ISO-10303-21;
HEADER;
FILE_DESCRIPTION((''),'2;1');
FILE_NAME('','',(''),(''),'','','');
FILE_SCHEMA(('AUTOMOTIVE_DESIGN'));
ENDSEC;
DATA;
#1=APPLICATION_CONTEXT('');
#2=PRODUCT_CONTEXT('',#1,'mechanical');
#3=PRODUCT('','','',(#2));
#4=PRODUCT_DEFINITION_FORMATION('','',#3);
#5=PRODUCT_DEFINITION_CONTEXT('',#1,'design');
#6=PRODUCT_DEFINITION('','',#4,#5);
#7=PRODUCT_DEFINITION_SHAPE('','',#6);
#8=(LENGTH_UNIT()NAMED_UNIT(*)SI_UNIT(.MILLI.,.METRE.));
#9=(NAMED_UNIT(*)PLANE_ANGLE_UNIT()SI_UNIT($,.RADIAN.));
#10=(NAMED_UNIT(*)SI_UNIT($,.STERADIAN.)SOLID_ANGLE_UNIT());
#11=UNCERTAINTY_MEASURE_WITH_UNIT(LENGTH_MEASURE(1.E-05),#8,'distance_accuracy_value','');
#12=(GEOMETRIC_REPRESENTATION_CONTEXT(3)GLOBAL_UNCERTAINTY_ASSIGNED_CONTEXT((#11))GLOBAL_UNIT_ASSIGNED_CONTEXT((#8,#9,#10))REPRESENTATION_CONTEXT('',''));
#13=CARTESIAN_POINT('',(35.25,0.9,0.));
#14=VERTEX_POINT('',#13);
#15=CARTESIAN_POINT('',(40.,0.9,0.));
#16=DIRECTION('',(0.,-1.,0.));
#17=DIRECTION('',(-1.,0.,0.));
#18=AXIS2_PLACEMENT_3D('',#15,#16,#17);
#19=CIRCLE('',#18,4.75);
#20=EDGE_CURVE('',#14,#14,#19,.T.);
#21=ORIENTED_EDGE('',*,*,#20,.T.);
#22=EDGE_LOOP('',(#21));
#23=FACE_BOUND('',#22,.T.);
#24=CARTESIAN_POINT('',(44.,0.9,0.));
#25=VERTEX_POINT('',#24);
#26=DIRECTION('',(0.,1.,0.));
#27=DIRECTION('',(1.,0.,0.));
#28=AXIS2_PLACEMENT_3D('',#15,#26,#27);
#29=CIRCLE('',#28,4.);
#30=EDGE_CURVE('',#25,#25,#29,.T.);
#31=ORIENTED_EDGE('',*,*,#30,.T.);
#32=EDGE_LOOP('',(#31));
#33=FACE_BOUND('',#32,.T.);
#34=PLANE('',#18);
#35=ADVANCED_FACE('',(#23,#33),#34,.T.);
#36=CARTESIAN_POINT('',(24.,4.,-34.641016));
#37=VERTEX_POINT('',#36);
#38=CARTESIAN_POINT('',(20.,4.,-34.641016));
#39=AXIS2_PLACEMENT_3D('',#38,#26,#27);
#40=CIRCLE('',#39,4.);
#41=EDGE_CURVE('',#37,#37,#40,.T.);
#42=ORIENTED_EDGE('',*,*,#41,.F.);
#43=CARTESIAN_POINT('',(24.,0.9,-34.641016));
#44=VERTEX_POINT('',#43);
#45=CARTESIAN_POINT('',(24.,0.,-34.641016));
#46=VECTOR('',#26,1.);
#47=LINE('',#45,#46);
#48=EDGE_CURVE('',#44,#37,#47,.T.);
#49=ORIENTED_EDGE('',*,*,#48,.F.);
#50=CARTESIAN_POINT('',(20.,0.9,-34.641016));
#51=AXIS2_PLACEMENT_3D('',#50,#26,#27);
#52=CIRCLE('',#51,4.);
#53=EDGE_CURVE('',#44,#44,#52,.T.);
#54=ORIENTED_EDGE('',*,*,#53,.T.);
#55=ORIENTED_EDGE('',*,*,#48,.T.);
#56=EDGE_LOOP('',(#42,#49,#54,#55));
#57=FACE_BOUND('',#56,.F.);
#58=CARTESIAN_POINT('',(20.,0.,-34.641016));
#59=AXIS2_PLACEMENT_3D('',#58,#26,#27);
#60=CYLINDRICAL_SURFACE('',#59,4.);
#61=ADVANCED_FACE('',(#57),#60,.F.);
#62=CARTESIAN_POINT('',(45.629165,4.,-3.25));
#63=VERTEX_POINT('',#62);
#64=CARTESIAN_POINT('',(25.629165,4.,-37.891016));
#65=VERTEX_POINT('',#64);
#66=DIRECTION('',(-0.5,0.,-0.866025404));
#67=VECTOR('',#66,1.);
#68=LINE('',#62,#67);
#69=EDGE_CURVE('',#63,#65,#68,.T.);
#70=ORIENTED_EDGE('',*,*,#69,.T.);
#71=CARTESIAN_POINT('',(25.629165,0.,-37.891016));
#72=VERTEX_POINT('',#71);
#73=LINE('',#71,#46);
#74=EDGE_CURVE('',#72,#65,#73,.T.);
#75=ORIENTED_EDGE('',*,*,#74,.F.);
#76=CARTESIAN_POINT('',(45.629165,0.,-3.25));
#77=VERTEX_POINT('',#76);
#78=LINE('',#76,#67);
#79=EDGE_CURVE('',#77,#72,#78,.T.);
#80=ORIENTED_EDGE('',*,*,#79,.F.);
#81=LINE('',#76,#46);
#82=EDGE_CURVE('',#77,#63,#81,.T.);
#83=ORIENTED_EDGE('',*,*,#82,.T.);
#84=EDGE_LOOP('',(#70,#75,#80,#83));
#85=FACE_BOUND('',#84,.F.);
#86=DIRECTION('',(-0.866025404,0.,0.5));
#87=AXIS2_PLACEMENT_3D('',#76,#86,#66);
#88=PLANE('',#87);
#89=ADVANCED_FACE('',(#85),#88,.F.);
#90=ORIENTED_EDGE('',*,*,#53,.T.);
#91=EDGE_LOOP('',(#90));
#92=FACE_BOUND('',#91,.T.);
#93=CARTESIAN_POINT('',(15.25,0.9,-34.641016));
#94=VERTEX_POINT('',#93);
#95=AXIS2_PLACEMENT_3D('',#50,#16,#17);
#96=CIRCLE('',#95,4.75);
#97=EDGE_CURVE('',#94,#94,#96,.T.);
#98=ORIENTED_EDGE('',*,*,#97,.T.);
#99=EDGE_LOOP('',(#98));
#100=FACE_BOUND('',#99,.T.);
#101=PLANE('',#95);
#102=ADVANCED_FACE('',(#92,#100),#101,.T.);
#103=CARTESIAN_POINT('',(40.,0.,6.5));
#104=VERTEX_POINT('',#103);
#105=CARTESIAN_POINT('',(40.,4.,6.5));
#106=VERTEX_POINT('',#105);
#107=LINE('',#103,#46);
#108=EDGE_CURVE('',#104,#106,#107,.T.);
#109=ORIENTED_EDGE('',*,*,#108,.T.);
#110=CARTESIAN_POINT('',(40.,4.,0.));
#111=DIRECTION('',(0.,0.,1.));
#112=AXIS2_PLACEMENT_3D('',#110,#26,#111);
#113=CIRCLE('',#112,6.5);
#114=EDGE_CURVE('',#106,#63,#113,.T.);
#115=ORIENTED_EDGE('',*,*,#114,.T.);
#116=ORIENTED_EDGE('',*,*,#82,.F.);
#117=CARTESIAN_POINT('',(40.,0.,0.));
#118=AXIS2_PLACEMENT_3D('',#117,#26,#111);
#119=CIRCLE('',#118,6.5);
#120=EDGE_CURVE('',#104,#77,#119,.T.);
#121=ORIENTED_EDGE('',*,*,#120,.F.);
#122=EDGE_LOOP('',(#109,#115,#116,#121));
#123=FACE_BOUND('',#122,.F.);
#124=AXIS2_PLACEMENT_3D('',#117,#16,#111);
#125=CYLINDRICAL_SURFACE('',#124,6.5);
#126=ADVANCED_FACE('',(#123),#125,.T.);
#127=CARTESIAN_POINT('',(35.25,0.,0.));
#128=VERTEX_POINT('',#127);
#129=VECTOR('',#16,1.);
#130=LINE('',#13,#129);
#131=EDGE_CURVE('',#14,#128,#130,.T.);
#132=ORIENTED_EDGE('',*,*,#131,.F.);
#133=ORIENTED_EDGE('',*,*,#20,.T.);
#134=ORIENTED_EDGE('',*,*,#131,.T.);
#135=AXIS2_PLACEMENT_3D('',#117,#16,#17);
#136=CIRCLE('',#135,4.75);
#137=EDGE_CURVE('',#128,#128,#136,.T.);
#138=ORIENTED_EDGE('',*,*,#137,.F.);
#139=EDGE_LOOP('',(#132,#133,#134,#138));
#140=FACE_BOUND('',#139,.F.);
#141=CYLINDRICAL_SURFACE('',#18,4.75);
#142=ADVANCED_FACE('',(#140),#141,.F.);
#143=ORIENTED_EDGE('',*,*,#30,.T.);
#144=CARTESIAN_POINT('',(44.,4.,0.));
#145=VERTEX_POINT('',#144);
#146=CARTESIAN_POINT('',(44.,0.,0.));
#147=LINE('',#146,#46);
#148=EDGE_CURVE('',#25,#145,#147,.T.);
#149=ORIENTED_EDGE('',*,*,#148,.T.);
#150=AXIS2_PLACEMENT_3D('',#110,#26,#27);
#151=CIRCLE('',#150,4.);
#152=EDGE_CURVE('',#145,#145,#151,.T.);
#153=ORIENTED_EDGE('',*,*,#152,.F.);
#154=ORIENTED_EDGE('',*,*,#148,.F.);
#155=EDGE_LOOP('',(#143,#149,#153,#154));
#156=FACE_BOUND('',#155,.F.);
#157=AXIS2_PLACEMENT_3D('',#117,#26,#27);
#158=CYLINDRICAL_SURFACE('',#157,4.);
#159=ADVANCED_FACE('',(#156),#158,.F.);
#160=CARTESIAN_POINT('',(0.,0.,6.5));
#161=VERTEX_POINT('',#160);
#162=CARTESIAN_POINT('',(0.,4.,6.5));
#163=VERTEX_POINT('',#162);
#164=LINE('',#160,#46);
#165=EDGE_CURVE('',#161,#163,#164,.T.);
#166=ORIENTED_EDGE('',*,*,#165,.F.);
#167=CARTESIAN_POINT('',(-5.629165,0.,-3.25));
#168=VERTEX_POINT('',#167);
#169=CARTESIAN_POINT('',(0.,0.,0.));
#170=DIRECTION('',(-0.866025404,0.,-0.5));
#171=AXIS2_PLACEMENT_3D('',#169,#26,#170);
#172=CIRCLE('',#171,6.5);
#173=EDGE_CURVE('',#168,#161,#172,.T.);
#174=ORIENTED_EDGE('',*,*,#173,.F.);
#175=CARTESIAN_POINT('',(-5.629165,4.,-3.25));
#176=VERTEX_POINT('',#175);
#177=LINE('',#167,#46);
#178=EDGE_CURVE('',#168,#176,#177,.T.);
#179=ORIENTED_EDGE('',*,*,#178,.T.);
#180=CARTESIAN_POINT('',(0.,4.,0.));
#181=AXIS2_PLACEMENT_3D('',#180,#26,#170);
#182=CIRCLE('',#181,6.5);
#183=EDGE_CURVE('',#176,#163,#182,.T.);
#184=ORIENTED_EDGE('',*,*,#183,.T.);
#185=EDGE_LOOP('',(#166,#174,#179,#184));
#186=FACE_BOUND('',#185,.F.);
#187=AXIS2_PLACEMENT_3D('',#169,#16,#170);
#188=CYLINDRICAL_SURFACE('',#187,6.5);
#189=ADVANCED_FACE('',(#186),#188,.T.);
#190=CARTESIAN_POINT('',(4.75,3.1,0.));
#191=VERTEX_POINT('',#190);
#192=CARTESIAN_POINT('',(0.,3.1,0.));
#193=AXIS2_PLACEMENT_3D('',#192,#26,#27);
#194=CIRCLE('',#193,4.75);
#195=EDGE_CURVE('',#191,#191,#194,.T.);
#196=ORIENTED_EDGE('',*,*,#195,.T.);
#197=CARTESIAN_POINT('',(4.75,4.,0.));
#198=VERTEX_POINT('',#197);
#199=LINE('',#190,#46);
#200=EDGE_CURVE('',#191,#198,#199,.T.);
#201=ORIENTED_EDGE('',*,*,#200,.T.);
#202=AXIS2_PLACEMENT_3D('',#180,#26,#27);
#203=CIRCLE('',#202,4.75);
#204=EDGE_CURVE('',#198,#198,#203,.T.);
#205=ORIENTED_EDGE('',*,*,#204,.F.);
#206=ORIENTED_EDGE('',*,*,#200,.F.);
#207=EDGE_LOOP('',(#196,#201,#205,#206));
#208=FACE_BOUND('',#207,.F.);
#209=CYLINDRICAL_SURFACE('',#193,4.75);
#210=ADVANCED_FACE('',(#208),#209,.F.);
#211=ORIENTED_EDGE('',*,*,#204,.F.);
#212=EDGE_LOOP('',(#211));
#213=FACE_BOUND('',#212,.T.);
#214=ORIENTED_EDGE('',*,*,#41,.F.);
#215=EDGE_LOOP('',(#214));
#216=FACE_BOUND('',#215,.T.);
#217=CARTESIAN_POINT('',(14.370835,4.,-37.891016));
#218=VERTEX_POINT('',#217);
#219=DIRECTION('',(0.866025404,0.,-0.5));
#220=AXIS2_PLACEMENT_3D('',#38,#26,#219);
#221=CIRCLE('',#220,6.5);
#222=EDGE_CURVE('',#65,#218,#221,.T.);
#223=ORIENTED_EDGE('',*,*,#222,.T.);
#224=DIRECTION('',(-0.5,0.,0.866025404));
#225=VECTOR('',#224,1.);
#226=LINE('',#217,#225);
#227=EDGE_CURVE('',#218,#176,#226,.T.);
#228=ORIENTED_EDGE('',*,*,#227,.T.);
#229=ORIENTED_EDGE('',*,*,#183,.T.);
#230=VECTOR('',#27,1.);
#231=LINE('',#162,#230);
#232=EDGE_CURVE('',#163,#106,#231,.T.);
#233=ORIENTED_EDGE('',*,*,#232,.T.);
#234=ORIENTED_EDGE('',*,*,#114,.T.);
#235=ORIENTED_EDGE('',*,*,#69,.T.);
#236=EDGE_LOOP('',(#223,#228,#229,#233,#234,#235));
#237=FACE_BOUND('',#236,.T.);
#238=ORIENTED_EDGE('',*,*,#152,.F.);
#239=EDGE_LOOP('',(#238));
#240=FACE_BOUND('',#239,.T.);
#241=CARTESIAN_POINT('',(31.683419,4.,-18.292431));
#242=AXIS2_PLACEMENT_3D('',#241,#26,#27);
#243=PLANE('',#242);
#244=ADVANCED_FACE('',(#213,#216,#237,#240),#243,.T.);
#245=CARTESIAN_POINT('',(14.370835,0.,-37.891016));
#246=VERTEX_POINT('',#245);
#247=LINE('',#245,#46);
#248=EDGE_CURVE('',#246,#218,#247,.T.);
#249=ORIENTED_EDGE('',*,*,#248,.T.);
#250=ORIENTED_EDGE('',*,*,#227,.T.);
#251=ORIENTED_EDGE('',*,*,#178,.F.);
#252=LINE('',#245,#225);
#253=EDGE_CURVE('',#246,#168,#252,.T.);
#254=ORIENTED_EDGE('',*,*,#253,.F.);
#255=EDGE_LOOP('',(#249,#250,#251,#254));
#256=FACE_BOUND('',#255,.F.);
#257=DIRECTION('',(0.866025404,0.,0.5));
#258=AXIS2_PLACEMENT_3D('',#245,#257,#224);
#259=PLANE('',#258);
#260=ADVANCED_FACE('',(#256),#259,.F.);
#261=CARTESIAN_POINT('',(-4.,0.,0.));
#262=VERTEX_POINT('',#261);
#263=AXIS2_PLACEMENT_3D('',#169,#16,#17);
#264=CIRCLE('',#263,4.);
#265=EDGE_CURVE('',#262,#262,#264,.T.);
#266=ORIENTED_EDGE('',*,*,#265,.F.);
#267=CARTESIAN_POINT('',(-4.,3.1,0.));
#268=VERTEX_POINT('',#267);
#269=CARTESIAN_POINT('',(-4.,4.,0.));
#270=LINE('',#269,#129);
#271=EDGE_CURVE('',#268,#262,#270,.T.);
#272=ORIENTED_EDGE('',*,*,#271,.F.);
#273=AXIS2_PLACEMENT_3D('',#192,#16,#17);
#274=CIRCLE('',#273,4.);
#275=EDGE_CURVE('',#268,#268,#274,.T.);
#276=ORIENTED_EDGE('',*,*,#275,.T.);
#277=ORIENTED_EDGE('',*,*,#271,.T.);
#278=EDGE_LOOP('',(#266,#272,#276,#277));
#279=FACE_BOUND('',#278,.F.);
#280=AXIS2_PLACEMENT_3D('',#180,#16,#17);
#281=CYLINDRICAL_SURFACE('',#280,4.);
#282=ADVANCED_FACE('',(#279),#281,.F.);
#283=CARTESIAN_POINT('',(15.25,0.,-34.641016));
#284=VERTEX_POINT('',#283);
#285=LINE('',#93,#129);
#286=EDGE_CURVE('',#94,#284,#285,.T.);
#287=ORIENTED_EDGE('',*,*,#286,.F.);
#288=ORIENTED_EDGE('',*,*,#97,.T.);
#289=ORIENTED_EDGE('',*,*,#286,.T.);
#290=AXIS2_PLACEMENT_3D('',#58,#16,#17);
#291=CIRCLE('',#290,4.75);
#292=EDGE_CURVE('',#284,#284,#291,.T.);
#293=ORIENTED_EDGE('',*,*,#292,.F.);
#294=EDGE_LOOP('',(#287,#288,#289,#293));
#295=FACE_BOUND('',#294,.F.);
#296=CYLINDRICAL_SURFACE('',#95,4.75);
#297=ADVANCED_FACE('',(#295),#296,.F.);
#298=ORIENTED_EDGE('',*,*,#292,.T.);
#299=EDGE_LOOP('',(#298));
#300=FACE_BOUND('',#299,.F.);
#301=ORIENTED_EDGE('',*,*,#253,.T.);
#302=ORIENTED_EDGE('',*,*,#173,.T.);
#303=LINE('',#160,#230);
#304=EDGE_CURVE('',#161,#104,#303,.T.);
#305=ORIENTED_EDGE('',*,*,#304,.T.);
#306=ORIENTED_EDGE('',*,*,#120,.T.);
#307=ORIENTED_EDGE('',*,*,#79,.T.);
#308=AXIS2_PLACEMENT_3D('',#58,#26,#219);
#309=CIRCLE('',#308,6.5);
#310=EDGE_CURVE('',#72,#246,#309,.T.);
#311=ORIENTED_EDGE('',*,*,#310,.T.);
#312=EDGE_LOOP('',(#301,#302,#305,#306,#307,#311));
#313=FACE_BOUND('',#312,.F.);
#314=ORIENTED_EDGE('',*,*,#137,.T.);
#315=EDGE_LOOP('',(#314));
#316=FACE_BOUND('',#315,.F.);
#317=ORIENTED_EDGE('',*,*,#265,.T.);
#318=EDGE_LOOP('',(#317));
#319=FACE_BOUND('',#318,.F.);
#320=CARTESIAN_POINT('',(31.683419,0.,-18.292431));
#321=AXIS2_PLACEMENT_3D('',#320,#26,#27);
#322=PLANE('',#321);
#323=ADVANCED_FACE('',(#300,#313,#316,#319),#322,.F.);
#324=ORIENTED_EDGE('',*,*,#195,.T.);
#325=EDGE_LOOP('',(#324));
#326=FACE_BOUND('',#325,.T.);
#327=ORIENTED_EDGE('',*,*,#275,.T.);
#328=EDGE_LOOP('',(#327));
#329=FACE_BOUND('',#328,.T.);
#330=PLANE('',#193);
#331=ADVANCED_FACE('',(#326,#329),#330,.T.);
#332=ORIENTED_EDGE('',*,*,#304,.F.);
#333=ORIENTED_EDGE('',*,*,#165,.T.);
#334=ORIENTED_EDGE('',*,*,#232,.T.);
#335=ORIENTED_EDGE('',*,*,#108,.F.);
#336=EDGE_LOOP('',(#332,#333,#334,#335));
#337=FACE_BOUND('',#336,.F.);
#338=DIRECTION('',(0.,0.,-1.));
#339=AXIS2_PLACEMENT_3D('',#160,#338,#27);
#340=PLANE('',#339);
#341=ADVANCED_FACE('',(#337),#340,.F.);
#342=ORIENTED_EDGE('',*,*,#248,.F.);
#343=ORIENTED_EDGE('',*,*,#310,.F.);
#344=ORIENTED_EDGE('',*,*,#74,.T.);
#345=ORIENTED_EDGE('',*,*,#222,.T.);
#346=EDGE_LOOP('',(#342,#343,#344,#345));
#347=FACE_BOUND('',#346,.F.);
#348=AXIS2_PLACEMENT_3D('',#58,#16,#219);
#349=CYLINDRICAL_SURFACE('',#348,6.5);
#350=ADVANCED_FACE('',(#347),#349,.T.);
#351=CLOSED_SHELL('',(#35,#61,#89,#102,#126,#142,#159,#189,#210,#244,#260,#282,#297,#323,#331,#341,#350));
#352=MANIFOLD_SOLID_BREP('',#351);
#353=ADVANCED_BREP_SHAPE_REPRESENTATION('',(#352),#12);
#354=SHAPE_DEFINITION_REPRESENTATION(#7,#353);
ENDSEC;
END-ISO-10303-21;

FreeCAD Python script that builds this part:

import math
import FreeCAD as App
import Part
import Sketcher
Q = App.Units.Quantity

doc = App.newDocument("Part")
body = doc.addObject("PartDesign::Body", "Body")

sketch1 = body.newObject("Sketcher::SketchObject", "Sketch")
sketch1.AttachmentSupport = (doc.getObject("XZ_Plane"), [""])
sketch1.MapMode = "FlatFace"
sketch1.addGeometry(Part.LineSegment(App.Vector(14.370835, -37.891016, 0), App.Vector(-5.629165, -3.25, 0)), False)
sketch1.addGeometry(Part.ArcOfCircle(Part.Circle(App.Vector(0, 0, 0), App.Vector(0, 0, 1), 6.5), math.radians(90), math.radians(210)), False)
sketch1.addGeometry(Part.LineSegment(App.Vector(0, 6.5, 0), App.Vector(40, 6.5, 0)), False)
sketch1.addGeometry(Part.ArcOfCircle(Part.Circle(App.Vector(40, 0, 0), App.Vector(0, 0, 1), 6.5), math.radians(-30), math.radians(90)), False)
sketch1.addGeometry(Part.LineSegment(App.Vector(45.629165, -3.25, 0), App.Vector(25.629165, -37.891016, 0)), False)
sketch1.addGeometry(Part.ArcOfCircle(Part.Circle(App.Vector(20, -34.641016, 0), App.Vector(0, 0, 1), 6.5), math.radians(-150), math.radians(-30)), False)
sketch1.addConstraint(Sketcher.Constraint("Tangent", 0, 2, 1, 2))
sketch1.addConstraint(Sketcher.Constraint("Tangent", 1, 1, 2, 1))
sketch1.addConstraint(Sketcher.Constraint("Tangent", 2, 2, 3, 2))
sketch1.addConstraint(Sketcher.Constraint("Tangent", 3, 1, 4, 1))
sketch1.addConstraint(Sketcher.Constraint("Tangent", 4, 2, 5, 2))
sketch1.addConstraint(Sketcher.Constraint("Tangent", 5, 1, 0, 1))
sketch1.addConstraint(Sketcher.Constraint("Horizontal", 2))
sketch1.addConstraint(Sketcher.Constraint("Coincident", 1, 3, -1, 1))
sketch1.addConstraint(Sketcher.Constraint("Equal", 1, 3))
sketch1.addConstraint(Sketcher.Constraint("Equal", 3, 5))
sketch1.addConstraint(Sketcher.Constraint("Horizontal", 0, 2, 3, 1))
sketch1.addConstraint(Sketcher.Constraint("Radius", 1, 6.5))
sketch1.addConstraint(Sketcher.Constraint("DistanceX", 2, 1, 2, 2, 40.0))
sketch1.addConstraint(Sketcher.Constraint("Angle", 0, Q("120 deg")))
pad1 = body.newObject("PartDesign::Pad", "Pad")
pad1.Profile = sketch1
pad1.Length = 4
pad1.Reversed = True

sketch2 = body.newObject("Sketcher::SketchObject", "Sketch001")
sketch2.AttachmentSupport = (doc.getObject("XZ_Plane"), [""])
sketch2.MapMode = "FlatFace"
sketch2.AttachmentOffset = App.Placement(App.Vector(0, 0, -4), App.Rotation())
sketch2.addGeometry(Part.Circle(App.Vector(0, 0, 0), App.Vector(0, 0, 1), 4), False)
sketch2.addConstraint(Sketcher.Constraint("Coincident", 0, 3, -1, 1))
sketch2.addConstraint(Sketcher.Constraint("Diameter", 0, 8.0))
doc.recompute()
hole = body.newObject("PartDesign::Hole", "Hole")
hole.Profile = sketch2
hole.ThreadType = "None"
hole.Diameter = 8
hole.DepthType = "Dimension"
hole.Depth = 12.4
hole.DrillPoint = "Angled"
hole.DrillPointAngle = 118
hole.HoleCutType = "Counterbore"
hole.HoleCutDiameter = 9.5
hole.HoleCutDepth = 0.9
hole.Reversed = True

sketch3 = body.newObject("Sketcher::SketchObject", "Sketch002")
sketch3.AttachmentSupport = (doc.getObject("XZ_Plane"), [""])
sketch3.MapMode = "FlatFace"
sketch3.addGeometry(Part.Circle(App.Vector(40, 0, 0), App.Vector(0, 0, 1), 4), False)
sketch3.addGeometry(Part.Circle(App.Vector(20, -34.641016, 0), App.Vector(0, 0, 1), 4), False)
sketch3.addConstraint(Sketcher.Constraint("Equal", 0, 1))
sketch3.addConstraint(Sketcher.Constraint("PointOnObject", 0, 3, -1))
sketch3.addConstraint(Sketcher.Constraint("Diameter", 0, 8.0))
sketch3.addConstraint(Sketcher.Constraint("DistanceX", -1, 1, 0, 3, 40.0))
sketch3.addConstraint(Sketcher.Constraint("DistanceX", -1, 1, 1, 3, 20.0))
sketch3.addConstraint(Sketcher.Constraint("DistanceY", 1, 3, -1, 1, 34.641016))
doc.recompute()
hole2 = body.newObject("PartDesign::Hole", "Hole001")
hole2.Profile = sketch3
hole2.ThreadType = "None"
hole2.Diameter = 8
hole2.DepthType = "Dimension"
hole2.Depth = 12.4
hole2.DrillPoint = "Angled"
hole2.DrillPointAngle = 118
hole2.HoleCutType = "Counterbore"
hole2.HoleCutDiameter = 9.5
hole2.HoleCutDepth = 0.9

doc.recompute()
